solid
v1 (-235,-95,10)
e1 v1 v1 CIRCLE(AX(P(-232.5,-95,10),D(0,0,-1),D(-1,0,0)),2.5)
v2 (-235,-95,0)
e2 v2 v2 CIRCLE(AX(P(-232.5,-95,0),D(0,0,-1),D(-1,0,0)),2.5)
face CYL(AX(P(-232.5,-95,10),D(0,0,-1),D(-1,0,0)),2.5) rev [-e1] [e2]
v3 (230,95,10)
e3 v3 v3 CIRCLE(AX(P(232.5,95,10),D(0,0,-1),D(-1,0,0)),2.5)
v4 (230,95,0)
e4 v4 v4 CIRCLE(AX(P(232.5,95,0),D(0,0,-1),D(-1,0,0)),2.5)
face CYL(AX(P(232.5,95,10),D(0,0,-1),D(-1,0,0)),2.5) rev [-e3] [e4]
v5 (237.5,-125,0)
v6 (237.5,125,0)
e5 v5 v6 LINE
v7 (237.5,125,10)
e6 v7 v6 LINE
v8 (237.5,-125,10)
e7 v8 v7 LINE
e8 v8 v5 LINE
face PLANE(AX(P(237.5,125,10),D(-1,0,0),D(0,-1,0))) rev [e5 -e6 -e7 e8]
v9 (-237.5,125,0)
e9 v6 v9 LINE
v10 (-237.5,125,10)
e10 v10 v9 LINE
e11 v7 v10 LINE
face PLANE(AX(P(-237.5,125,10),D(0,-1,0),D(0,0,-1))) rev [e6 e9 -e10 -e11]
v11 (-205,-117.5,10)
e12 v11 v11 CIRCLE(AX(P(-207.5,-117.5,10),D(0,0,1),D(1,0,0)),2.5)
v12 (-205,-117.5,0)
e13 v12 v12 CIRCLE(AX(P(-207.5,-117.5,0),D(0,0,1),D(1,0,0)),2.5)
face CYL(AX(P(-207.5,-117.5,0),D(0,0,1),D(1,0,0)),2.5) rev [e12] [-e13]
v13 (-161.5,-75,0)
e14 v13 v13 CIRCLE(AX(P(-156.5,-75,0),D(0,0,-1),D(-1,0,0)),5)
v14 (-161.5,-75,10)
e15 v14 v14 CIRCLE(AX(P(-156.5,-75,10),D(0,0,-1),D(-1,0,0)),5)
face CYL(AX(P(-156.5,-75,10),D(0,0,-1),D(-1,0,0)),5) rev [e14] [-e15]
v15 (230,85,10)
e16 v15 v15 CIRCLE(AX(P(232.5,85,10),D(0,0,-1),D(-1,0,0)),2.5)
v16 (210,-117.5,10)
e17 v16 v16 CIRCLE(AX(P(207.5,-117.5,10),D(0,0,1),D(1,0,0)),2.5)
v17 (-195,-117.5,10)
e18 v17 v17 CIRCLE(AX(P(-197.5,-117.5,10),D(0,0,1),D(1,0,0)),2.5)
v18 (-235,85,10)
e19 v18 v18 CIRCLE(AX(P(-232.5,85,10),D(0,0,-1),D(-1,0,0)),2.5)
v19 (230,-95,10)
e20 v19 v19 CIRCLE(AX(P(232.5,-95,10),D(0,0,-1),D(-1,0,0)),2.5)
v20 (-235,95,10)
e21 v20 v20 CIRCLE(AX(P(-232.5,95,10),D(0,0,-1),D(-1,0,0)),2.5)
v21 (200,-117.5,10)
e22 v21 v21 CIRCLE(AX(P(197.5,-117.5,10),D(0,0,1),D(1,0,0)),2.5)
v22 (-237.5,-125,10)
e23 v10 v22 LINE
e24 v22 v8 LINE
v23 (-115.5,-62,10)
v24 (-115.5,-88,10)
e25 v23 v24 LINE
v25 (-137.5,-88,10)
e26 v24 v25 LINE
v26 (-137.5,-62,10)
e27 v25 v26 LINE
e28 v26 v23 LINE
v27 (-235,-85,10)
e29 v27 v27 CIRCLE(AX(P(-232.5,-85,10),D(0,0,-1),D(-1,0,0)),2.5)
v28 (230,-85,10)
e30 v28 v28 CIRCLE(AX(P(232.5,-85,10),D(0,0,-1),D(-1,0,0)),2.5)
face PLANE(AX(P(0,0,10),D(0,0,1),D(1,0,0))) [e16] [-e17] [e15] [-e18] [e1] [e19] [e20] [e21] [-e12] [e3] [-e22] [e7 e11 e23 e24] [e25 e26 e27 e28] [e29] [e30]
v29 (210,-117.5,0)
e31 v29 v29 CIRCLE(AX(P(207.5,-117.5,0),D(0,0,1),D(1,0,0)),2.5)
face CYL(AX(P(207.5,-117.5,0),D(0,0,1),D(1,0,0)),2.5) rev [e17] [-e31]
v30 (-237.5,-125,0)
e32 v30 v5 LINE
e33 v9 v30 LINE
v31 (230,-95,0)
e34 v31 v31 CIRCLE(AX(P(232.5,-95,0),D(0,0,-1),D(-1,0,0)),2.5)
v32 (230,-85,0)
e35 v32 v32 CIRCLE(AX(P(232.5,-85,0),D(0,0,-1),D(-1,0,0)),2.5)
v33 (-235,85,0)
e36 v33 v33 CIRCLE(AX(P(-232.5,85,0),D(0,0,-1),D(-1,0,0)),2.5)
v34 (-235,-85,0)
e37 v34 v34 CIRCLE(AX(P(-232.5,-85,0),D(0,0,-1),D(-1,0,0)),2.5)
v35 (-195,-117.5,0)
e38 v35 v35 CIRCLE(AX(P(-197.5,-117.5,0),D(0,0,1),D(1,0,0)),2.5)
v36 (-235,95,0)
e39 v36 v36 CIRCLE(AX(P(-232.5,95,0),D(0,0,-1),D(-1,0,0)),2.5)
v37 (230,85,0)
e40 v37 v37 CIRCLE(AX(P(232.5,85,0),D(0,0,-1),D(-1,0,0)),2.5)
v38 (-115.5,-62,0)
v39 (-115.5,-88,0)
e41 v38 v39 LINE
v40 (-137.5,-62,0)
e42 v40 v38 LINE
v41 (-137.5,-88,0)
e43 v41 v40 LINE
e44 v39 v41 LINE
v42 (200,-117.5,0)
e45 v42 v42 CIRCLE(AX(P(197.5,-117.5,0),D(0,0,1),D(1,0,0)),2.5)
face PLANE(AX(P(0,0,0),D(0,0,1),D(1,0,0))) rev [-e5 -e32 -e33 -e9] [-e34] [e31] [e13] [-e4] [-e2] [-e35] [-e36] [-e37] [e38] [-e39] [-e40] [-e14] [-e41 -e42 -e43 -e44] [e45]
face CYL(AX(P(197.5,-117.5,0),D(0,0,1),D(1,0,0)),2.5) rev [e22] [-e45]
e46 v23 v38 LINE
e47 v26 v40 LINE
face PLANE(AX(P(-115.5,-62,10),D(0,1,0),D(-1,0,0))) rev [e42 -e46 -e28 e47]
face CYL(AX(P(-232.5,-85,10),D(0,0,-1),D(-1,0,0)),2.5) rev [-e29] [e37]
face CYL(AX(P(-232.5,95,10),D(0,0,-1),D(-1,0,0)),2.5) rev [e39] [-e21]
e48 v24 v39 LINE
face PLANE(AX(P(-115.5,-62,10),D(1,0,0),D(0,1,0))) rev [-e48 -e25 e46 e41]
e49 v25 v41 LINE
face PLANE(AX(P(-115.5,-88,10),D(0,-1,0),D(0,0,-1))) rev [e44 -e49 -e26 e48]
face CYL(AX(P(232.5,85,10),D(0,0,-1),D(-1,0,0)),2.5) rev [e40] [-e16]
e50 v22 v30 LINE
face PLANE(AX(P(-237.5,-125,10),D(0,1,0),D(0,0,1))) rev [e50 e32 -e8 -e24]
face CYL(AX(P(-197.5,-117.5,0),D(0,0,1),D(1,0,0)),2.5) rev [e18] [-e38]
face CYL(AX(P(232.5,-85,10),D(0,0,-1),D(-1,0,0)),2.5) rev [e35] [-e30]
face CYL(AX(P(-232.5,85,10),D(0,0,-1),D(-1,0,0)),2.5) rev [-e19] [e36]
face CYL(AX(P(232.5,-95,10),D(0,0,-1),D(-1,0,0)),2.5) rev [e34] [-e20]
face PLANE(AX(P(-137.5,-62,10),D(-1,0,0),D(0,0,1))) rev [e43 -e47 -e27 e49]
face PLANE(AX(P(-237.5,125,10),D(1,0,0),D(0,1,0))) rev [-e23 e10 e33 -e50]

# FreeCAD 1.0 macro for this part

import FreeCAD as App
import Part
import Sketcher
from FreeCAD import Vector

doc = App.newDocument("Part")
params = doc.addObject("Spreadsheet::Sheet", "Params")
for row, (alias, value) in enumerate([
    ("sketch1_width", "475 mm"),
    ("sketch1_height", "250 mm"),
    ("pad1_length", "10 mm"),
    ("sketch2_diameter", "5 mm"),
    ("sketch3_diameter", "5 mm"),
    ("sketch4_diameter", "10 mm"),
    ("sketch4_width", "22 mm"),
    ("sketch4_height", "26 mm"),
], start=1):
    params.set(f"A{row}", alias)
    params.set(f"B{row}", "=" + value)
    params.setAlias(f"B{row}", alias)

body = doc.addObject("PartDesign::Body", "Body")

# Sketch on XY plane
sketch1 = body.newObject("Sketcher::SketchObject", "Sketch")
sketch1.AttachmentSupport = (doc.getObject("XY_Plane"), [""])
sketch1.MapMode = "FlatFace"
sketch1.addGeometry([
    Part.LineSegment(Vector(-238, 125, 0), Vector(-238, -125, 0)),
    Part.LineSegment(Vector(-238, -125, 0), Vector(238, -125, 0)),
    Part.LineSegment(Vector(238, -125, 0), Vector(238, 125, 0)),
    Part.LineSegment(Vector(238, 125, 0), Vector(-238, 125, 0)),
], False)
sketch1.addConstraint([
    Sketcher.Constraint("Coincident", 0, 2, 1, 1),
    Sketcher.Constraint("Coincident", 1, 2, 2, 1),
    Sketcher.Constraint("Coincident", 2, 2, 3, 1),
    Sketcher.Constraint("Coincident", 3, 2, 0, 1),
    Sketcher.Constraint("Vertical", 0),
    Sketcher.Constraint("Horizontal", 1),
    Sketcher.Constraint("Vertical", 2),
    Sketcher.Constraint("Horizontal", 3),
    Sketcher.Constraint("Symmetric", 0, 2, 2, 2, -1, 1),
    Sketcher.Constraint("DistanceX", 1, 1, 1, 2, 475.0),
    Sketcher.Constraint("DistanceY", 0, 2, 0, 1, 250.0),
])
sketch1.setExpression("Constraints[9]", "Params.sketch1_width")
sketch1.setExpression("Constraints[10]", "Params.sketch1_height")
pad1 = body.newObject("PartDesign::Pad", "Pad")
pad1.Profile = sketch1
pad1.setExpression("Length", "Params.pad1_length")

# Sketch on XY plane
sketch2 = body.newObject("Sketcher::SketchObject", "Sketch001")
sketch2.AttachmentSupport = (doc.getObject("XY_Plane"), [""])
sketch2.MapMode = "FlatFace"
sketch2.AttachmentOffset = App.Placement(Vector(0, 0, 10), App.Rotation())
sketch2.addGeometry([
    Part.Circle(Vector(-207.5, -117.5, 0), Vector(0, 0, 1), 2.5),
    Part.Circle(Vector(207.5, -117.5, 0), Vector(0, 0, 1), 2.5),
    Part.Circle(Vector(197.5, -117.5, 0), Vector(0, 0, 1), 2.5),
    Part.Circle(Vector(-197.5, -117.5, 0), Vector(0, 0, 1), 2.5),
], False)
sketch2.addConstraint([
    Sketcher.Constraint("Equal", 0, 1),
    Sketcher.Constraint("Equal", 1, 2),
    Sketcher.Constraint("Equal", 2, 3),
    Sketcher.Constraint("Symmetric", 0, 3, 1, 3, -2),
    Sketcher.Constraint("Symmetric", 2, 3, 3, 3, -2),
    Sketcher.Constraint("Horizontal", 1, 3, 2, 3),
    Sketcher.Constraint("Diameter", 0, 5.0),
    Sketcher.Constraint("DistanceX", 0, 3, 1, 3, 415.0),
    Sketcher.Constraint("DistanceX", 2, 3, 1, 3, 10.0),
    Sketcher.Constraint("DistanceY", 0, 3, -1, 1, 117.5),
])
sketch2.setExpression("Constraints[6]", "Params.sketch2_diameter")
pocket1 = body.newObject("PartDesign::Pocket", "Pocket")
pocket1.Profile = sketch2
pocket1.Type = "ThroughAll"

# Sketch on XY plane
sketch3 = body.newObject("Sketcher::SketchObject", "Sketch002")
sketch3.AttachmentSupport = (doc.getObject("XY_Plane"), [""])
sketch3.MapMode = "FlatFace"
sketch3.addGeometry([
    Part.Circle(Vector(-232.5, 95, 0), Vector(0, 0, 1), 2.5),  # 0
    Part.Circle(Vector(-232.5, 85, 0), Vector(0, 0, 1), 2.5),  # 1
    Part.Circle(Vector(-232.5, -85, 0), Vector(0, 0, 1), 2.5),  # 2
    Part.Circle(Vector(-232.5, -95, 0), Vector(0, 0, 1), 2.5),  # 3
    Part.Circle(Vector(232.5, 95, 0), Vector(0, 0, 1), 2.5),  # 4
    Part.Circle(Vector(232.5, 85, 0), Vector(0, 0, 1), 2.5),  # 5
    Part.Circle(Vector(232.5, -85, 0), Vector(0, 0, 1), 2.5),  # 6
    Part.Circle(Vector(232.5, -95, 0), Vector(0, 0, 1), 2.5),  # 7
], False)
sketch3.addConstraint([
    Sketcher.Constraint("Equal", 0, 1),
    Sketcher.Constraint("Equal", 1, 2),
    Sketcher.Constraint("Equal", 2, 3),
    Sketcher.Constraint("Equal", 3, 4),
    Sketcher.Constraint("Equal", 4, 5),
    Sketcher.Constraint("Equal", 5, 6),
    Sketcher.Constraint("Equal", 6, 7),
    Sketcher.Constraint("Symmetric", 3, 3, 4, 3, -1, 1),
    Sketcher.Constraint("Symmetric", 2, 3, 5, 3, -1, 1),
    Sketcher.Constraint("Symmetric", 1, 3, 6, 3, -1, 1),
    Sketcher.Constraint("Symmetric", 0, 3, 7, 3, -1, 1),
    Sketcher.Constraint("Symmetric", 0, 3, 4, 3, -2),
    Sketcher.Constraint("Symmetric", 1, 3, 5, 3, -2),
    Sketcher.Constraint("Vertical", 0, 3, 1, 3),
    Sketcher.Constraint("Diameter", 0, 5.0),
    Sketcher.Constraint("DistanceY", -1, 1, 0, 3, 95.0),
    Sketcher.Constraint("DistanceY", -1, 1, 1, 3, 85.0),
    Sketcher.Constraint("DistanceX", 0, 3, 4, 3, 465.0),
])
sketch3.setExpression("Constraints[14]", "Params.sketch3_diameter")
pocket2 = body.newObject("PartDesign::Pocket", "Pocket001")
pocket2.Profile = sketch3
pocket2.Type = "ThroughAll"
pocket2.Reversed = True

# Sketch on XY plane
sketch4 = body.newObject("Sketcher::SketchObject", "Sketch003")
sketch4.AttachmentSupport = (doc.getObject("XY_Plane"), [""])
sketch4.MapMode = "FlatFace"
sketch4.addGeometry([
    Part.Circle(Vector(-156, -75, 0), Vector(0, 0, 1), 5),  # 0
    Part.LineSegment(Vector(-116, -62, 0), Vector(-116, -88, 0)),  # 1
    Part.LineSegment(Vector(-116, -88, 0), Vector(-138, -88, 0)),  # 2
    Part.LineSegment(Vector(-138, -88, 0), Vector(-138, -62, 0)),  # 3
    Part.LineSegment(Vector(-138, -62, 0), Vector(-116, -62, 0)),  # 4
], False)
sketch4.addConstraint([
    Sketcher.Constraint("Coincident", 1, 2, 2, 1),
    Sketcher.Constraint("Coincident", 2, 2, 3, 1),
    Sketcher.Constraint("Coincident", 3, 2, 4, 1),
    Sketcher.Constraint("Coincident", 4, 2, 1, 1),
    Sketcher.Constraint("Vertical", 1),
    Sketcher.Constraint("Horizontal", 2),
    Sketcher.Constraint("Vertical", 3),
    Sketcher.Constraint("Horizontal", 4),
    Sketcher.Constraint("Diameter", 0, 10.0),
    Sketcher.Constraint("DistanceX", 2, 2, 2, 1, 22.0),
    Sketcher.Constraint("DistanceY", 1, 2, 1, 1, 26.0),
    Sketcher.Constraint("DistanceY", 0, 3, -1, 1, 75.0),
    Sketcher.Constraint("DistanceY", 1, 2, -1, 1, 88.0),
    Sketcher.Constraint("DistanceX", 0, 3, 1, 2, 41.0),
    Sketcher.Constraint("DistanceX", 0, 3, -1, 1, 156.5),
])
sketch4.setExpression("Constraints[8]", "Params.sketch4_diameter")
sketch4.setExpression("Constraints[9]", "Params.sketch4_width")
sketch4.setExpression("Constraints[10]", "Params.sketch4_height")
pocket3 = body.newObject("PartDesign::Pocket", "Pocket002")
pocket3.Profile = sketch4
pocket3.Type = "ThroughAll"
pocket3.Reversed = True

doc.recompute()
